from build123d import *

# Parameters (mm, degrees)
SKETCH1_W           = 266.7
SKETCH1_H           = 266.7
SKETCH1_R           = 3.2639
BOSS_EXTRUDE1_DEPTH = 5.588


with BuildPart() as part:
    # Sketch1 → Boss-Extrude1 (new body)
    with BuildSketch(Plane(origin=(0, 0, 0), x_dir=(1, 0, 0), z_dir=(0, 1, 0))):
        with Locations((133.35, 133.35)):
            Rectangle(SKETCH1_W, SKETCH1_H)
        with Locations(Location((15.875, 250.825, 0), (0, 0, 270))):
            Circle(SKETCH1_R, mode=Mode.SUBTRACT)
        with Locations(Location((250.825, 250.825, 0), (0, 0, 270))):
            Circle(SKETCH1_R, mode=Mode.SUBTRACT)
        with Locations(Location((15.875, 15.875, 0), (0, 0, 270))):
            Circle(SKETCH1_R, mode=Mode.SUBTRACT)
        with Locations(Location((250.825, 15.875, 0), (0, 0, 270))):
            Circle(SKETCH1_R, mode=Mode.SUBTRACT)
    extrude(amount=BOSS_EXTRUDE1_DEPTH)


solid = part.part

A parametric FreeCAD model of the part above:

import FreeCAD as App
import Part
import Sketcher

V = App.Vector
Q = App.Units.Quantity


def add_polygon(sketch, points):
    """Adds a closed chain of lines whose ends are joined by coincident constraints."""
    first, n = sketch.GeometryCount, len(points)
    for a, b in zip(points, points[1:] + points[:1]):
        sketch.addGeometry(Part.LineSegment(App.Vector(*a, 0), App.Vector(*b, 0)), False)
    for i in range(n):
        sketch.addConstraint(Sketcher.Constraint("Coincident", first + i, 2, first + (i + 1) % n, 1))

doc = App.newDocument("Part")
body = doc.addObject("PartDesign::Body", "Body")

# Sketch on XZ plane
sketch1 = doc.addObject("Sketcher::SketchObject", "Sketch")
body.addObject(sketch1)
sketch1.AttachmentSupport = (doc.XZ_Plane, [""])
sketch1.MapMode = "FlatFace"
add_polygon(sketch1, [(0, -266.7), (0, 0), (266.7, 0), (266.7, -266.7)])  # lines 0-3
sketch1.addGeometry(Part.Circle(V(15.875, -15.875, 0), V(0, 0, 1), 3.2639), False)  # 4
sketch1.addGeometry(Part.Circle(V(250.825, -15.875, 0), V(0, 0, 1), 3.2639), False)  # 5
sketch1.addGeometry(Part.Circle(V(15.875, -250.825, 0), V(0, 0, 1), 3.2639), False)  # 6
sketch1.addGeometry(Part.Circle(V(250.825, -250.825, 0), V(0, 0, 1), 3.2639), False)  # 7
sketch1.addConstraint([
    Sketcher.Constraint("Vertical", 0),
    Sketcher.Constraint("Horizontal", 1),
    Sketcher.Constraint("Vertical", 2),
    Sketcher.Constraint("Horizontal", 3),
    Sketcher.Constraint("Coincident", 0, 2, -1, 1),
    Sketcher.Constraint("Equal", 4, 5),
    Sketcher.Constraint("Equal", 5, 6),
    Sketcher.Constraint("Equal", 6, 7),
    Sketcher.Constraint("Horizontal", 4, 3, 5, 3),
    Sketcher.Constraint("Horizontal", 6, 3, 7, 3),
    Sketcher.Constraint("Vertical", 4, 3, 6, 3),
    Sketcher.Constraint("Vertical", 5, 3, 7, 3),
    Sketcher.Constraint("Equal", 3, 0),
    Sketcher.Constraint("Diameter", 4, Q("0.257 in")),
    Sketcher.Constraint("DistanceX", 1, 1, 1, 2, Q("10.5 in")),
    Sketcher.Constraint("DistanceX", 4, 3, 5, 3, Q("9.25 in")),
    Sketcher.Constraint("DistanceY", 6, 3, 4, 3, Q("9.25 in")),
    Sketcher.Constraint("DistanceX", -1, 1, 4, 3, Q("0.625 in")),
    Sketcher.Constraint("DistanceY", 4, 3, -1, 1, Q("0.625 in")),
])
pad1 = doc.addObject("PartDesign::Pad", "Pad")
body.addObject(pad1)
pad1.Profile = sketch1
pad1.Length = Q("0.22 in")
pad1.Reversed = True

doc.recompute()
